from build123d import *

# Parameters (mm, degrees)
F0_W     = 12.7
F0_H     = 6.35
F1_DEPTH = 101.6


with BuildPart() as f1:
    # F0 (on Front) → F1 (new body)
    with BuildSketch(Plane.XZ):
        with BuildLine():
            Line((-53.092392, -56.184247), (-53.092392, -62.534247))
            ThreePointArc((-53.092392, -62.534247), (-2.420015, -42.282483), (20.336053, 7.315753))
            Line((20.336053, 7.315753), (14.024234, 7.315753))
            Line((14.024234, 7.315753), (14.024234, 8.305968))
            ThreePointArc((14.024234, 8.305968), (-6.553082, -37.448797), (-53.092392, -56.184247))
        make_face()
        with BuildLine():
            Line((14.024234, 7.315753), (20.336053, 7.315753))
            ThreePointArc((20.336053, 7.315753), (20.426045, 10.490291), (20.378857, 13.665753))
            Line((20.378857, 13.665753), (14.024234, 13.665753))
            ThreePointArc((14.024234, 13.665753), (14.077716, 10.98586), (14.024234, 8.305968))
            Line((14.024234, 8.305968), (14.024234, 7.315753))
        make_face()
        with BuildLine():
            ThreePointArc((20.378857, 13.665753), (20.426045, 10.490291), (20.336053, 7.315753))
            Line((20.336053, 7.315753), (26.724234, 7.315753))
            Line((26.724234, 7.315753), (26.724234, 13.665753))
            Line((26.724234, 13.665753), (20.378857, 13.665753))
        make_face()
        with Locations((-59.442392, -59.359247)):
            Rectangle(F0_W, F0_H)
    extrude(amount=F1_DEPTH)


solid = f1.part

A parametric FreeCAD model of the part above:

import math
import FreeCAD as App
import Part
import Sketcher
from FreeCAD import Vector
Q = App.Units.Quantity

doc = App.newDocument("Part")
body = doc.addObject("PartDesign::Body", "Body")

# Sketch on XZ plane
sketch1 = doc.addObject("Sketcher::SketchObject", "Sketch")
body.addObject(sketch1)
sketch1.AttachmentSupport = (doc.XZ_Plane, [""])
sketch1.MapMode = "FlatFace"
sketch1.addGeometry([
    Part.ArcOfCircle(Part.Circle(Vector(-53.092392, 10.985861, 0), Vector(0, 0, 1), 73.520108), math.radians(-90), math.radians(-2.861382)),  # 0
    Part.LineSegment(Vector(20.336053, 7.315753, 0), Vector(26.724234, 7.315753, 0)),  # 1
    Part.LineSegment(Vector(26.724234, 7.315753, 0), Vector(26.724234, 13.665753, 0)),  # 2
    Part.LineSegment(Vector(26.724234, 13.665753, 0), Vector(14.024234, 13.665753, 0)),  # 3
    Part.ArcOfCircle(Part.Circle(Vector(-53.091464, 10.98586, 0), Vector(0, 0, 1), 67.16918), math.radians(-2.286574), math.radians(2.286574)),  # 4
    Part.ArcOfCircle(Part.Circle(Vector(-53.09239, 10.985859, 0), Vector(0, 0, 1), 67.170106), math.radians(-90.000001), math.radians(-2.286541)),  # 5
    Part.LineSegment(Vector(-53.092392, -56.184247, 0), Vector(-65.792392, -56.184247, 0)),  # 6
    Part.LineSegment(Vector(-65.792392, -56.184247, 0), Vector(-65.792392, -62.534247, 0)),  # 7
    Part.LineSegment(Vector(-65.792392, -62.534247, 0), Vector(-53.092392, -62.534247, 0)),  # 8
], False)
sketch1.addConstraint([
    Sketcher.Constraint("Coincident", 0, 2, 1, 1),
    Sketcher.Constraint("Coincident", 1, 2, 2, 1),
    Sketcher.Constraint("Coincident", 2, 2, 3, 1),
    Sketcher.Constraint("Coincident", 3, 2, 4, 2),
    Sketcher.Constraint("Coincident", 4, 1, 5, 2),
    Sketcher.Constraint("Coincident", 5, 1, 6, 1),
    Sketcher.Constraint("Coincident", 6, 2, 7, 1),
    Sketcher.Constraint("Coincident", 7, 2, 8, 1),
    Sketcher.Constraint("Coincident", 8, 2, 0, 1),
    Sketcher.Constraint("Horizontal", 1),
    Sketcher.Constraint("Vertical", 2),
    Sketcher.Constraint("Horizontal", 3),
    Sketcher.Constraint("Horizontal", 6),
    Sketcher.Constraint("Vertical", 7),
    Sketcher.Constraint("Horizontal", 8),
    Sketcher.Constraint("Coincident", 5, 3, 0, 3),
    Sketcher.Constraint("DistanceX", 3, 2, 3, 1, Q("0.5 in")),
    Sketcher.Constraint("DistanceX", 6, 2, 6, 1, Q("0.5 in")),
    Sketcher.Constraint("DistanceX", 8, 1, 8, 2, Q("0.5 in")),
    Sketcher.Constraint("DistanceY", 2, 1, 2, 2, Q("0.25 in")),
    Sketcher.Constraint("DistanceY", 7, 2, 7, 1, Q("0.25 in")),
    Sketcher.Constraint("DistanceX", 4, 1, 1, 2, Q("0.5 in")),
    Sketcher.Constraint("DistanceX", 6, 2, 5, 3, Q("0.5000001 in")),
    Sketcher.Constraint("DistanceY", 5, 1, 3, 2, Q("2.75 in")),
    Sketcher.Constraint("Radius", 4, 67.16918),
    Sketcher.Constraint("Radius", 0, 73.520108),
    Sketcher.Constraint("DistanceX", 1, 1, 1, 2, 6.388181),
    Sketcher.Constraint("DistanceY", -1, 1, 0, 3, 10.985861),
    Sketcher.Constraint("DistanceX", 5, 3, -1, 1, 53.09239),
])
pad1 = doc.addObject("PartDesign::Pad", "Pad")
body.addObject(pad1)
pad1.Profile = sketch1
pad1.Length = Q("4 in")

doc.recompute()
